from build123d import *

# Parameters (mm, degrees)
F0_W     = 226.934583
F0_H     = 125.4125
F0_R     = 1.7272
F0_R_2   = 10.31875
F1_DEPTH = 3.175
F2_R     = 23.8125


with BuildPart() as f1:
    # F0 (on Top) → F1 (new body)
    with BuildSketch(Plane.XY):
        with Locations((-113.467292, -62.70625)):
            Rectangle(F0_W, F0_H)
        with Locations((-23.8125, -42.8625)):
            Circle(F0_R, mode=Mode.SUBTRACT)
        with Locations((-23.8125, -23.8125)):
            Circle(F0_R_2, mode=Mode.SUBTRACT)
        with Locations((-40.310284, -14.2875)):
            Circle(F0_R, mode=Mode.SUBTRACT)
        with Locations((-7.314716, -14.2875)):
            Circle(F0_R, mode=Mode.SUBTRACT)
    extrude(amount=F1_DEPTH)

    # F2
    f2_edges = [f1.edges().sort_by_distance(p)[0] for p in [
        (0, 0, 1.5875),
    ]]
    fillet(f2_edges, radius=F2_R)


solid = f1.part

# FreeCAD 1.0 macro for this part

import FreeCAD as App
import Part
import Sketcher
Q = App.Units.Quantity


def edges_at(feature, points):
    """Names of the edges that pass closest to the given points."""
    edges = feature.Shape.Edges
    near = lambda p: min(range(len(edges)), key=lambda i: edges[i].distToShape(Part.Vertex(*p))[0])
    return sorted({f"Edge{near(p) + 1}" for p in points})

doc = App.newDocument("Part")
body = doc.addObject("PartDesign::Body", "Body")

# Sketch on XY plane
sketch1 = body.newObject("Sketcher::SketchObject", "Sketch")
sketch1.AttachmentSupport = (doc.getObject("XY_Plane"), [""])
sketch1.MapMode = "FlatFace"
sketch1.addGeometry([
    Part.LineSegment(App.Vector(-226.934584, 0, 0), App.Vector(-226.934584, -125.4125, 0)),  # 0
    Part.LineSegment(App.Vector(-226.934584, -125.4125, 0), App.Vector(0, -125.4125, 0)),  # 1
    Part.LineSegment(App.Vector(0, -125.4125, 0), App.Vector(0, 0, 0)),  # 2
    Part.LineSegment(App.Vector(0, 0, 0), App.Vector(-226.934584, 0, 0)),  # 3
    Part.Circle(App.Vector(-23.8125, -42.8625, 0), App.Vector(0, 0, 1), 1.7272),  # 4
    Part.Circle(App.Vector(-40.310284, -14.2875, 0), App.Vector(0, 0, 1), 1.7272),  # 5
    Part.Circle(App.Vector(-23.8125, -23.8125, 0), App.Vector(0, 0, 1), 10.31875),  # 6
    Part.Circle(App.Vector(-7.314716, -14.2875, 0), App.Vector(0, 0, 1), 1.7272),  # 7
], False)
sketch1.addConstraint([
    Sketcher.Constraint("Coincident", 0, 2, 1, 1),
    Sketcher.Constraint("Coincident", 1, 2, 2, 1),
    Sketcher.Constraint("Coincident", 2, 2, 3, 1),
    Sketcher.Constraint("Coincident", 3, 2, 0, 1),
    Sketcher.Constraint("Vertical", 0),
    Sketcher.Constraint("Horizontal", 1),
    Sketcher.Constraint("Vertical", 2),
    Sketcher.Constraint("Horizontal", 3),
    Sketcher.Constraint("Coincident", 2, 2, -1, 1),
    Sketcher.Constraint("Equal", 4, 5),
    Sketcher.Constraint("Equal", 5, 7),
    Sketcher.Constraint("Horizontal", 5, 3, 7, 3),
    Sketcher.Constraint("Vertical", 4, 3, 6, 3),
    Sketcher.Constraint("Diameter", 4, Q("0.136 in")),
    Sketcher.Constraint("Diameter", 6, Q("0.8125 in")),
    Sketcher.Constraint("DistanceY", 0, 2, 6, 3, Q("4 in")),
    Sketcher.Constraint("DistanceY", 0, 2, 0, 1, Q("4.9375 in")),
    Sketcher.Constraint("DistanceY", 4, 3, 6, 3, Q("0.75 in")),
    Sketcher.Constraint("DistanceX", 4, 3, -1, 1, Q("0.9375 in")),
    Sketcher.Constraint("DistanceY", 5, 3, -1, 1, Q("0.5625 in")),
    Sketcher.Constraint("DistanceX", 0, 2, 5, 3, Q("186.6243 mm")),
    Sketcher.Constraint("DistanceX", 1, 1, 1, 2, Q("226.934583 mm")),
    Sketcher.Constraint("DistanceX", 5, 3, 7, 3, Q("32.995568 mm")),
])
pad1 = body.newObject("PartDesign::Pad", "Pad")
pad1.Profile = sketch1
pad1.Length = Q("0.125 in")
doc.recompute()

fillet = body.newObject("PartDesign::Fillet", "Fillet")
fillet.Base = (pad1, edges_at(pad1, [(0, 0, 1.587)]))
fillet.Radius = Q("0.9375 in")

doc.recompute()
